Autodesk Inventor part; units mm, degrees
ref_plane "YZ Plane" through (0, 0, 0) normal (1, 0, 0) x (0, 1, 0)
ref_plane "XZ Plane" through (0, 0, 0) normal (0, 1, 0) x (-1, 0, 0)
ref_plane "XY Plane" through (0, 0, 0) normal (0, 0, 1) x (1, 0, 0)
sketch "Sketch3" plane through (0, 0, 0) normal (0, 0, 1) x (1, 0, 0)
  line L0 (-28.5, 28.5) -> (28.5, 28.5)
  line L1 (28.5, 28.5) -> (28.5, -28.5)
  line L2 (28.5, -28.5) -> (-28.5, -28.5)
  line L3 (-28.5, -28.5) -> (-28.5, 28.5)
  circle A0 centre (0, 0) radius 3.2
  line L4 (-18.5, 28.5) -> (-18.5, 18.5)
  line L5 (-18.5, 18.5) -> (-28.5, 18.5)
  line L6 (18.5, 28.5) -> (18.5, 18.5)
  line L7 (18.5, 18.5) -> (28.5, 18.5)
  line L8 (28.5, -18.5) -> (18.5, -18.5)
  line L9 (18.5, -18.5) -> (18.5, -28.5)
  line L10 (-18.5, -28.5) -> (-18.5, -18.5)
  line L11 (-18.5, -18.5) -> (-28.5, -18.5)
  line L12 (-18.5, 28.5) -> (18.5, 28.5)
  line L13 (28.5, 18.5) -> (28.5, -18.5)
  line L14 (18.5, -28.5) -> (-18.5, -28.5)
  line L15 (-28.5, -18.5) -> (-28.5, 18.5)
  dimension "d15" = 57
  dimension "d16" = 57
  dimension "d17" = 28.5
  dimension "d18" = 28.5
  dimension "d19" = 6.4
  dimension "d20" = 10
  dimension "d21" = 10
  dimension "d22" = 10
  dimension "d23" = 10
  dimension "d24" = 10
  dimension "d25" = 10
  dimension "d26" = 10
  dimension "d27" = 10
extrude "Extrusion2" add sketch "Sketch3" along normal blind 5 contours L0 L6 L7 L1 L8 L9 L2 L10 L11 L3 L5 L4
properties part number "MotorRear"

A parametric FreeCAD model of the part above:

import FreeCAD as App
import Part
import Sketcher


def add_polygon(sketch, points):
    """Adds a closed chain of lines whose ends are joined by coincident constraints."""
    first, n = sketch.GeometryCount, len(points)
    for a, b in zip(points, points[1:] + points[:1]):
        sketch.addGeometry(Part.LineSegment(App.Vector(*a, 0), App.Vector(*b, 0)), False)
    for i in range(n):
        sketch.addConstraint(Sketcher.Constraint("Coincident", first + i, 2, first + (i + 1) % n, 1))

doc = App.newDocument("Part")
body = doc.addObject("PartDesign::Body", "Body")

# Sketch on XY plane
sketch1 = body.newObject("Sketcher::SketchObject", "Sketch")
sketch1.AttachmentSupport = (doc.getObject("XY_Plane"), [""])
sketch1.MapMode = "FlatFace"
add_polygon(sketch1, [(18.5, 28.5), (-18.5, 28.5), (-18.5, 18.5), (-28.5, 18.5), (-28.5, -18.5), (-18.5, -18.5), (-18.5, -28.5), (18.5, -28.5), (18.5, -18.5), (28.5, -18.5), (28.5, 18.5), (18.5, 18.5)])  # lines 0-11
sketch1.addGeometry(Part.Circle(App.Vector(0, 0, 0), App.Vector(0, 0, 1), 3.2), False)  # 12
sketch1.addConstraint(Sketcher.Constraint("Horizontal", 0))
sketch1.addConstraint(Sketcher.Constraint("Vertical", 1))
sketch1.addConstraint(Sketcher.Constraint("Horizontal", 2))
sketch1.addConstraint(Sketcher.Constraint("Vertical", 3))
sketch1.addConstraint(Sketcher.Constraint("Horizontal", 4))
sketch1.addConstraint(Sketcher.Constraint("Vertical", 5))
sketch1.addConstraint(Sketcher.Constraint("Horizontal", 6))
sketch1.addConstraint(Sketcher.Constraint("Vertical", 7))
sketch1.addConstraint(Sketcher.Constraint("Horizontal", 8))
sketch1.addConstraint(Sketcher.Constraint("Vertical", 9))
sketch1.addConstraint(Sketcher.Constraint("Horizontal", 10))
sketch1.addConstraint(Sketcher.Constraint("Vertical", 11))
sketch1.addConstraint(Sketcher.Constraint("Coincident", 12, 3, -1, 1))
sketch1.addConstraint(Sketcher.Constraint("Symmetric", 0, 2, 6, 2, -1, 1))
sketch1.addConstraint(Sketcher.Constraint("Symmetric", 2, 2, 8, 2, -1, 1))
sketch1.addConstraint(Sketcher.Constraint("Symmetric", 4, 2, 10, 2, -1, 1))
sketch1.addConstraint(Sketcher.Constraint("Symmetric", 4, 2, 7, 2, -2))
sketch1.addConstraint(Sketcher.Constraint("Equal", 10, 1))
sketch1.addConstraint(Sketcher.Constraint("Equal", 6, 3))
sketch1.addConstraint(Sketcher.Constraint("Diameter", 12, 6.4))
sketch1.addConstraint(Sketcher.Constraint("DistanceX", 2, 2, 2, 1, 10.0))
sketch1.addConstraint(Sketcher.Constraint("DistanceY", -1, 1, 0, 2, 28.5))
pad1 = body.newObject("PartDesign::Pad", "Pad")
pad1.Profile = sketch1
pad1.Length = 5

doc.recompute()
